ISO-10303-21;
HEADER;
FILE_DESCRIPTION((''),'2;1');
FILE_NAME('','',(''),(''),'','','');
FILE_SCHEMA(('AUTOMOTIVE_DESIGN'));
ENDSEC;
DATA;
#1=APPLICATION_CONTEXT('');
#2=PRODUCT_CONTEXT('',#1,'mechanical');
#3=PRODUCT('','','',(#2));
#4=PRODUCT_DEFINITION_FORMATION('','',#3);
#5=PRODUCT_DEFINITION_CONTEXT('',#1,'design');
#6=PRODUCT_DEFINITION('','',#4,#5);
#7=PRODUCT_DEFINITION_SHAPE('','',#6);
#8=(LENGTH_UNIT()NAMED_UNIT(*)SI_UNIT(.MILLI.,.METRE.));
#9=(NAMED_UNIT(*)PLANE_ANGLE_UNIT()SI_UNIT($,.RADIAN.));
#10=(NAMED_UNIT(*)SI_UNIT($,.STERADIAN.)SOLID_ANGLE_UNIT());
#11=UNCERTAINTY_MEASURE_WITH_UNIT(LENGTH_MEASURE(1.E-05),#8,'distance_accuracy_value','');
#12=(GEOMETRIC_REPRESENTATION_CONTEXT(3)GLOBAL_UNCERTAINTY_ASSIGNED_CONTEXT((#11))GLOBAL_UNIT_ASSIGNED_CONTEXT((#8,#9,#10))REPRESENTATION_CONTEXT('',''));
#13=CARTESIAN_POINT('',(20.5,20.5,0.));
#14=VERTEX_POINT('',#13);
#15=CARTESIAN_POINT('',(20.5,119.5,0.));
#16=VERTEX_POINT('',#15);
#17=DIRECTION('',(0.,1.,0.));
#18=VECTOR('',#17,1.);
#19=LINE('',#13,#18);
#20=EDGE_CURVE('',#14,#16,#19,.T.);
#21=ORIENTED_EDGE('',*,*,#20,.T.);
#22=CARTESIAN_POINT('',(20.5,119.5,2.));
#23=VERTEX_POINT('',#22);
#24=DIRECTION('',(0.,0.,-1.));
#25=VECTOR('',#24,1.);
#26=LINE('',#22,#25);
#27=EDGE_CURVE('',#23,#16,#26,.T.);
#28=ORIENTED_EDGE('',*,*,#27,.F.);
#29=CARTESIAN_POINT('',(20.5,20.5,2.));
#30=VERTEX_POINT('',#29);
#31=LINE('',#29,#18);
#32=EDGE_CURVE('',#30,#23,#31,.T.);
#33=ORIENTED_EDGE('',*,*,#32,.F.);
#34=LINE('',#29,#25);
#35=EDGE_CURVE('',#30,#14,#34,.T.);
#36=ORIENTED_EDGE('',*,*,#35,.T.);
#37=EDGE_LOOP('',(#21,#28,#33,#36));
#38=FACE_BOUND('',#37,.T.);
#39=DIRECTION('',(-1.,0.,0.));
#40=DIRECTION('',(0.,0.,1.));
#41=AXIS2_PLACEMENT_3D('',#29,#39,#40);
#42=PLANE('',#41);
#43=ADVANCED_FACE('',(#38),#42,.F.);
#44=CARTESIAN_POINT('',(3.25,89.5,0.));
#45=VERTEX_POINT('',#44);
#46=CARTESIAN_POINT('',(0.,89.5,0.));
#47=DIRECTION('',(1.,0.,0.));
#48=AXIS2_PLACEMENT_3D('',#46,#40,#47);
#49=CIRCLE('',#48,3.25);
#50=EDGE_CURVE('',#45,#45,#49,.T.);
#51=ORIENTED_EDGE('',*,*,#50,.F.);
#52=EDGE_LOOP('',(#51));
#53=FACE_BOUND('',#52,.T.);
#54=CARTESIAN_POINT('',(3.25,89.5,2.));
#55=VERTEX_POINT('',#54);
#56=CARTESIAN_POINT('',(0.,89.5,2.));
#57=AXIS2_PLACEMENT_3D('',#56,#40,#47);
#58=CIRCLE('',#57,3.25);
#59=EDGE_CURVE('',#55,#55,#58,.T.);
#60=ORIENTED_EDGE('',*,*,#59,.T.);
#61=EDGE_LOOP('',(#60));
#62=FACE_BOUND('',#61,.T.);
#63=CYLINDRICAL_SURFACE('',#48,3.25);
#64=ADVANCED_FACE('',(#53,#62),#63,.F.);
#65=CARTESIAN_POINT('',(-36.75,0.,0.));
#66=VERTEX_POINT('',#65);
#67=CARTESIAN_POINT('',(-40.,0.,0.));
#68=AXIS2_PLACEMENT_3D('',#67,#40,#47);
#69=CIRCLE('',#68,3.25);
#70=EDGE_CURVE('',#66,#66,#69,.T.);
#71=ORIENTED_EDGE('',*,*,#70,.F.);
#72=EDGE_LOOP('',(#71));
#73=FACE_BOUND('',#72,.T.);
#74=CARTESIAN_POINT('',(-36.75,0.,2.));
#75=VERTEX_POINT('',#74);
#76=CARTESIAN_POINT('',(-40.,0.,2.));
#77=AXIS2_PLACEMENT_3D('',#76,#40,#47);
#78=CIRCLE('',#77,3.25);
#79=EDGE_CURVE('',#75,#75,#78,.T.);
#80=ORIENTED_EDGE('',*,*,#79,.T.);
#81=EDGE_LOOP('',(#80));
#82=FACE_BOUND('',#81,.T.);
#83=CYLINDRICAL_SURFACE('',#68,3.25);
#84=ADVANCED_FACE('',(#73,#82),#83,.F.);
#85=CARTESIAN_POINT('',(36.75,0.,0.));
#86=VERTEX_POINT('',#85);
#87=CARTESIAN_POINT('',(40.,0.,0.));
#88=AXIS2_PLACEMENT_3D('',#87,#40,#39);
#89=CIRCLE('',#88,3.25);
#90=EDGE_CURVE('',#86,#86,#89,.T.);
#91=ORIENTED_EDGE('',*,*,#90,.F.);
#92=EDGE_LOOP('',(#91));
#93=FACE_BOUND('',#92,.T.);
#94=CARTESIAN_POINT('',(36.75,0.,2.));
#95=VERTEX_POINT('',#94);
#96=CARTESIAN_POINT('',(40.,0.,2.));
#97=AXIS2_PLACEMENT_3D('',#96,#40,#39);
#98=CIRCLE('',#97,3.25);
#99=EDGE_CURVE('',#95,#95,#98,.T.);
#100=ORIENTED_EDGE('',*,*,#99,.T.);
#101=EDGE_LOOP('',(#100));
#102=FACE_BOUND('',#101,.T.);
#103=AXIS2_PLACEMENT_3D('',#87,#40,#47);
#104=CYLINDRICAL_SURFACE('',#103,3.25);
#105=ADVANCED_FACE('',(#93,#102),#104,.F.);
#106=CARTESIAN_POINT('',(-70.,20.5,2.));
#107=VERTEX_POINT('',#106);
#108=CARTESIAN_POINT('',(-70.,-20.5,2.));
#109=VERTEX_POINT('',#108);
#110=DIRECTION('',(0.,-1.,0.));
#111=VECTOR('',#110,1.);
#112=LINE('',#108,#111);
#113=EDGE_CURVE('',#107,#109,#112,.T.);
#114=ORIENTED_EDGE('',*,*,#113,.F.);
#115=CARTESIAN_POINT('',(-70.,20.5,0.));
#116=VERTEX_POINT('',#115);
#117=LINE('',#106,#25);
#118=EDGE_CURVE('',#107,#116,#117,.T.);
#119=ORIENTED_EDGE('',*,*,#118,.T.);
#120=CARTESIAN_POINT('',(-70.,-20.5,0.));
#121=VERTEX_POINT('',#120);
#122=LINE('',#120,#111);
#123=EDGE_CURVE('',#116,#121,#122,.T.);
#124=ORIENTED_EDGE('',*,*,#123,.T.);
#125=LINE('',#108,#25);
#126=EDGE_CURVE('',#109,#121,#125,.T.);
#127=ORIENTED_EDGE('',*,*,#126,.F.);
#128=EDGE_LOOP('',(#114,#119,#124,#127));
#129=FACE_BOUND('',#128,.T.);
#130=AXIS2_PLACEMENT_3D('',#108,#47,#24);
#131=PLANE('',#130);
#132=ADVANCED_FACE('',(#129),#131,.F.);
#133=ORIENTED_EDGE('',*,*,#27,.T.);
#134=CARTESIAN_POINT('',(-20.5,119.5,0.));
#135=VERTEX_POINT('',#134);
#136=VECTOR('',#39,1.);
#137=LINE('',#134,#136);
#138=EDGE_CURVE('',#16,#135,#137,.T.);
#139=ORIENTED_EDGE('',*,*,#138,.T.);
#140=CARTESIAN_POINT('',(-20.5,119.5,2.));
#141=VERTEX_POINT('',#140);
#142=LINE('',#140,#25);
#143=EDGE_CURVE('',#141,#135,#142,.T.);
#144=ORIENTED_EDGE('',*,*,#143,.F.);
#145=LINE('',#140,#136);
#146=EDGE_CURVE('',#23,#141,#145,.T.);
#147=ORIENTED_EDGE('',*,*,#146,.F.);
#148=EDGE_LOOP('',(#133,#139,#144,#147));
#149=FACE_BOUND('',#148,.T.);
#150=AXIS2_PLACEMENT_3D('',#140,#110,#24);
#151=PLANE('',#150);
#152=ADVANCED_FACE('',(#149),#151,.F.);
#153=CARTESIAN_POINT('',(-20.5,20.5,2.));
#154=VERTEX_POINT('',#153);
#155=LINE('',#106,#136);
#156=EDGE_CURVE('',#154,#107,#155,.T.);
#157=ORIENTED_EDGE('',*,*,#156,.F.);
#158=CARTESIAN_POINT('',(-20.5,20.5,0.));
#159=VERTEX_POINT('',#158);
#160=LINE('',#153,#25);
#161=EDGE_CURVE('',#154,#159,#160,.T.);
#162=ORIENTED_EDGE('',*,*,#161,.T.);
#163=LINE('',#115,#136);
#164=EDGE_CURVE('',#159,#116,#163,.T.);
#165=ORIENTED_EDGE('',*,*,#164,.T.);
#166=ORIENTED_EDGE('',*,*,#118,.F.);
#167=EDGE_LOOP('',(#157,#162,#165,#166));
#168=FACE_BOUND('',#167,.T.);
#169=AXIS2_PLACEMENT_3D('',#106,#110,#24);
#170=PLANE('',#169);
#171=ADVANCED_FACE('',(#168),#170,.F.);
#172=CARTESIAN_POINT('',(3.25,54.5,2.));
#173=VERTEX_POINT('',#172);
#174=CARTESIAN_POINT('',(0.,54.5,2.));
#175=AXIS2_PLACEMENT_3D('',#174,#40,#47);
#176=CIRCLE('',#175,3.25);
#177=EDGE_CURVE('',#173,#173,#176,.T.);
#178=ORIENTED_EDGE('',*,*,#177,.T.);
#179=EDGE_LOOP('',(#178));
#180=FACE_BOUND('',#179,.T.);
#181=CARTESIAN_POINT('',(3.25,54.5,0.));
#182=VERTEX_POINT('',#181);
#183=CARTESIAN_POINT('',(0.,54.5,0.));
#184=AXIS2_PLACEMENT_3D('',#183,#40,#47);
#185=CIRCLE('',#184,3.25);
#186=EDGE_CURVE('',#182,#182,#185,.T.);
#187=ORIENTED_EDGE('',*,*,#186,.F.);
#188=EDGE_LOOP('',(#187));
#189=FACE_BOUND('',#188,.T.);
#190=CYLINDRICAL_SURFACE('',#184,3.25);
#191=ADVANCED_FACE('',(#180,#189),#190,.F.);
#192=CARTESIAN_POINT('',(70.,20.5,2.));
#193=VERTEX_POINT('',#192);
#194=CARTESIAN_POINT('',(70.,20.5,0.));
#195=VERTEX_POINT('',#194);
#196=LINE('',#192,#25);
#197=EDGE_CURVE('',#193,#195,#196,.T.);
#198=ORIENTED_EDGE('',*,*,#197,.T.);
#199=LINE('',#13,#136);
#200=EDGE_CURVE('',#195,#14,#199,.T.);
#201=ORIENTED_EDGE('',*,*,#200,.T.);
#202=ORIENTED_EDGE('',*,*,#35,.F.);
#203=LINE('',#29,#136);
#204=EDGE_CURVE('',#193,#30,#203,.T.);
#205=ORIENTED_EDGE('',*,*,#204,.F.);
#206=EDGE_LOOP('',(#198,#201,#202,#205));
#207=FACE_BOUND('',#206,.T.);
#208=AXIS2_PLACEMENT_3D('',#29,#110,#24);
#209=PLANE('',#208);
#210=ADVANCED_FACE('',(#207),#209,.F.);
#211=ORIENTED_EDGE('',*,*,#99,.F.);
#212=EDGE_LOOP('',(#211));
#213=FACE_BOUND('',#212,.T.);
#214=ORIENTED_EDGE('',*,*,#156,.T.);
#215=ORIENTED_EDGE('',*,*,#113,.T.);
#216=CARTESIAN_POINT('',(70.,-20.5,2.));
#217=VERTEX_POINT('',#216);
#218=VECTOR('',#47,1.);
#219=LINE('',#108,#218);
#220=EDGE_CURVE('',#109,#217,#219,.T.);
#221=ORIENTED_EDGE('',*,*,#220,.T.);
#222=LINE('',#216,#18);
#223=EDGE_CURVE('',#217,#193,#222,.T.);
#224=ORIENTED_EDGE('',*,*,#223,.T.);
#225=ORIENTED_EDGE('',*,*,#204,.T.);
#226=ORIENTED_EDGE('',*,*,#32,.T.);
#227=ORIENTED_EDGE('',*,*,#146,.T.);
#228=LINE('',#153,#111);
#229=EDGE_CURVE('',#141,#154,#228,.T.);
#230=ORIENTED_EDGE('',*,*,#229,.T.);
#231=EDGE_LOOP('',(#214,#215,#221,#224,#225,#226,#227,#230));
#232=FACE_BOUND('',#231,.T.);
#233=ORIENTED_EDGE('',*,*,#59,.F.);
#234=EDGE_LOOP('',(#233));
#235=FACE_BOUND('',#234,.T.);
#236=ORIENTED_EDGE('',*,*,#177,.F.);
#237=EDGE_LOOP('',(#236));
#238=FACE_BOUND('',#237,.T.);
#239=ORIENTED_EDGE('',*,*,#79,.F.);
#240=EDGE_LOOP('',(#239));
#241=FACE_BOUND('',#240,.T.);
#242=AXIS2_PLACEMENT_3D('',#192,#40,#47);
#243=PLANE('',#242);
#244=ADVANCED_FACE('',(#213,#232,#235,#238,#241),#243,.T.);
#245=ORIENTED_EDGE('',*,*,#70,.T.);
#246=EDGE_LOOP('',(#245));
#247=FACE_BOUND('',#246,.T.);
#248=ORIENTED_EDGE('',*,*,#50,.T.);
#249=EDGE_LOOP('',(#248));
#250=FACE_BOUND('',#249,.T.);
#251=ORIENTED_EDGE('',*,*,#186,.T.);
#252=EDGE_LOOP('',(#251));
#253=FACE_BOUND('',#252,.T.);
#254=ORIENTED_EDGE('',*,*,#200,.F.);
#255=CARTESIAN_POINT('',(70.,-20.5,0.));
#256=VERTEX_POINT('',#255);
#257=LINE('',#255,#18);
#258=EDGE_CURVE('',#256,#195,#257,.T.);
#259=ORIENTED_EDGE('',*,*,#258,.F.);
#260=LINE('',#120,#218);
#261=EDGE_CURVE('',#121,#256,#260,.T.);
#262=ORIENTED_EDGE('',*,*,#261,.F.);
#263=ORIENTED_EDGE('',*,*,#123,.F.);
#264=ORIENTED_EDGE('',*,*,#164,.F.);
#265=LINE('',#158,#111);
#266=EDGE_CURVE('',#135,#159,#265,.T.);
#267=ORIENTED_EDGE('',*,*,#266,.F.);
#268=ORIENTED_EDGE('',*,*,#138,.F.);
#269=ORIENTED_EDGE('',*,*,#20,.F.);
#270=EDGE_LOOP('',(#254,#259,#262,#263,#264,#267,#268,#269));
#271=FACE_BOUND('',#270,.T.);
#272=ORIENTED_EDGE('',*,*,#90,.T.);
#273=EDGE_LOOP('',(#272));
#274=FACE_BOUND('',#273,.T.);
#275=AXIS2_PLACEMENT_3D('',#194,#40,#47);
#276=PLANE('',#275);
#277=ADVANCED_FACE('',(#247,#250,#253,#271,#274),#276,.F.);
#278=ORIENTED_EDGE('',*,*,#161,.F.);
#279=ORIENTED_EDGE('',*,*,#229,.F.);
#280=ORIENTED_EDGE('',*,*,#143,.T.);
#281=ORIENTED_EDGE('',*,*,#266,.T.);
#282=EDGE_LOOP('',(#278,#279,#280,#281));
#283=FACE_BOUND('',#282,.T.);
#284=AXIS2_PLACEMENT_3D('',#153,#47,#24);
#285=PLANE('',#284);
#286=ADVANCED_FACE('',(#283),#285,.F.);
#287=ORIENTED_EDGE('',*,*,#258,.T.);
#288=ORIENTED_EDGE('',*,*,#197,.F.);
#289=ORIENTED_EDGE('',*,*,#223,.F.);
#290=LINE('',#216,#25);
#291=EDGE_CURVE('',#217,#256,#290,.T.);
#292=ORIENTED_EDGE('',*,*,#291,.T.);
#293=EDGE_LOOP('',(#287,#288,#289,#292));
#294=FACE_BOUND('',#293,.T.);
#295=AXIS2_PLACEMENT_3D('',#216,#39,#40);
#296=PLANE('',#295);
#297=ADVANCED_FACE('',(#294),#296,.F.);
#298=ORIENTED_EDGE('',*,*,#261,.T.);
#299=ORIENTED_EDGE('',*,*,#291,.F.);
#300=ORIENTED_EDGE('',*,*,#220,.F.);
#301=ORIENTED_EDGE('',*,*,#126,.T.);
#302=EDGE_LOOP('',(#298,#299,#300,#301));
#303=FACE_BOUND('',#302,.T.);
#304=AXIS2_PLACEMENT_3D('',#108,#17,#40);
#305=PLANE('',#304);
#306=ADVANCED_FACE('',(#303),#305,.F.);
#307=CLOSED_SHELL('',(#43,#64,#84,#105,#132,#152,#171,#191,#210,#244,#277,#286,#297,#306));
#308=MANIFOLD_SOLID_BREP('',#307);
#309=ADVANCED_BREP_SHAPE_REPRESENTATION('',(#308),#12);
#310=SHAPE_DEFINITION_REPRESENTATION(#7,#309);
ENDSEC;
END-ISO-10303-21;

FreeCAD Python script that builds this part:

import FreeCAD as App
import Part
import Sketcher
from FreeCAD import Vector

doc = App.newDocument("Part")
body = doc.addObject("PartDesign::Body", "Body")

# Sketch on XY plane
sketch1 = doc.addObject("Sketcher::SketchObject", "Sketch")
body.addObject(sketch1)
sketch1.AttachmentSupport = (doc.XY_Plane, [""])
sketch1.MapMode = "FlatFace"
sketch1.addGeometry(Part.LineSegment(Vector(-70, -20, 0), Vector(70, -20, 0)), False)
sketch1.addGeometry(Part.LineSegment(Vector(70, -20, 0), Vector(70, 20, 0)), False)
sketch1.addGeometry(Part.LineSegment(Vector(70, 20, 0), Vector(20, 20, 0)), False)
sketch1.addGeometry(Part.LineSegment(Vector(20, 20, 0), Vector(20, 120, 0)), False)
sketch1.addGeometry(Part.LineSegment(Vector(20, 120, 0), Vector(-20, 120, 0)), False)
sketch1.addGeometry(Part.LineSegment(Vector(-20, 120, 0), Vector(-20, 20, 0)), False)
sketch1.addGeometry(Part.LineSegment(Vector(-20, 20, 0), Vector(-70, 20, 0)), False)
sketch1.addGeometry(Part.LineSegment(Vector(-70, 20, 0), Vector(-70, -20, 0)), False)
sketch1.addConstraint(Sketcher.Constraint("Coincident", 0, 2, 1, 1))
sketch1.addConstraint(Sketcher.Constraint("Coincident", 1, 2, 2, 1))
sketch1.addConstraint(Sketcher.Constraint("Coincident", 2, 2, 3, 1))
sketch1.addConstraint(Sketcher.Constraint("Coincident", 3, 2, 4, 1))
sketch1.addConstraint(Sketcher.Constraint("Coincident", 4, 2, 5, 1))
sketch1.addConstraint(Sketcher.Constraint("Coincident", 5, 2, 6, 1))
sketch1.addConstraint(Sketcher.Constraint("Coincident", 6, 2, 7, 1))
sketch1.addConstraint(Sketcher.Constraint("Coincident", 7, 2, 0, 1))
sketch1.addConstraint(Sketcher.Constraint("Horizontal", 0))
sketch1.addConstraint(Sketcher.Constraint("Vertical", 1))
sketch1.addConstraint(Sketcher.Constraint("Horizontal", 2))
sketch1.addConstraint(Sketcher.Constraint("Vertical", 3))
sketch1.addConstraint(Sketcher.Constraint("Horizontal", 4))
sketch1.addConstraint(Sketcher.Constraint("Vertical", 5))
sketch1.addConstraint(Sketcher.Constraint("Horizontal", 6))
sketch1.addConstraint(Sketcher.Constraint("Vertical", 7))
sketch1.addConstraint(Sketcher.Constraint("Symmetric", 0, 2, 6, 2, -1, 1))
sketch1.addConstraint(Sketcher.Constraint("Symmetric", 2, 2, 5, 2, -2))
sketch1.addConstraint(Sketcher.Constraint("Equal", 4, 1))
sketch1.addConstraint(Sketcher.Constraint("DistanceX", 0, 1, 0, 2, 140.0))
sketch1.addConstraint(Sketcher.Constraint("DistanceX", 4, 2, 4, 1, 41.0))
sketch1.addConstraint(Sketcher.Constraint("DistanceY", 3, 1, 3, 2, 99.0))
pad1 = doc.addObject("PartDesign::Pad", "Pad")
body.addObject(pad1)
pad1.Profile = sketch1
pad1.Length = 2

# Sketch on XY plane
sketch2 = doc.addObject("Sketcher::SketchObject", "Sketch001")
body.addObject(sketch2)
sketch2.AttachmentSupport = (doc.XY_Plane, [""])
sketch2.MapMode = "FlatFace"
sketch2.AttachmentOffset = App.Placement(Vector(0, 0, 2), App.Rotation())
sketch2.addGeometry(Part.Circle(Vector(0, 89.5, 0), Vector(0, 0, 1), 3.2), False)
sketch2.addGeometry(Part.Circle(Vector(0, 54.5, 0), Vector(0, 0, 1), 3.2), False)
sketch2.addGeometry(Part.Circle(Vector(-40, 0, 0), Vector(0, 0, 1), 3.2), False)
sketch2.addGeometry(Part.Circle(Vector(40, 0, 0), Vector(0, 0, 1), 3.2), False)
sketch2.addConstraint(Sketcher.Constraint("Equal", 0, 1))
sketch2.addConstraint(Sketcher.Constraint("Equal", 1, 2))
sketch2.addConstraint(Sketcher.Constraint("Equal", 2, 3))
sketch2.addConstraint(Sketcher.Constraint("Symmetric", 2, 3, 3, 3, -1, 1))
sketch2.addConstraint(Sketcher.Constraint("PointOnObject", 0, 3, -2))
sketch2.addConstraint(Sketcher.Constraint("PointOnObject", 1, 3, -2))
sketch2.addConstraint(Sketcher.Constraint("PointOnObject", 2, 3, -1))
sketch2.addConstraint(Sketcher.Constraint("Diameter", 0, 6.5))
sketch2.addConstraint(Sketcher.Constraint("DistanceX", 2, 3, -1, 1, 40.0))
sketch2.addConstraint(Sketcher.Constraint("DistanceY", 1, 3, 0, 3, 35.0))
sketch2.addConstraint(Sketcher.Constraint("DistanceY", -1, 1, 0, 3, 89.5))
pocket1 = doc.addObject("PartDesign::Pocket", "Pocket")
body.addObject(pocket1)
pocket1.Profile = sketch2
pocket1.Type = "ThroughAll"

doc.recompute()
